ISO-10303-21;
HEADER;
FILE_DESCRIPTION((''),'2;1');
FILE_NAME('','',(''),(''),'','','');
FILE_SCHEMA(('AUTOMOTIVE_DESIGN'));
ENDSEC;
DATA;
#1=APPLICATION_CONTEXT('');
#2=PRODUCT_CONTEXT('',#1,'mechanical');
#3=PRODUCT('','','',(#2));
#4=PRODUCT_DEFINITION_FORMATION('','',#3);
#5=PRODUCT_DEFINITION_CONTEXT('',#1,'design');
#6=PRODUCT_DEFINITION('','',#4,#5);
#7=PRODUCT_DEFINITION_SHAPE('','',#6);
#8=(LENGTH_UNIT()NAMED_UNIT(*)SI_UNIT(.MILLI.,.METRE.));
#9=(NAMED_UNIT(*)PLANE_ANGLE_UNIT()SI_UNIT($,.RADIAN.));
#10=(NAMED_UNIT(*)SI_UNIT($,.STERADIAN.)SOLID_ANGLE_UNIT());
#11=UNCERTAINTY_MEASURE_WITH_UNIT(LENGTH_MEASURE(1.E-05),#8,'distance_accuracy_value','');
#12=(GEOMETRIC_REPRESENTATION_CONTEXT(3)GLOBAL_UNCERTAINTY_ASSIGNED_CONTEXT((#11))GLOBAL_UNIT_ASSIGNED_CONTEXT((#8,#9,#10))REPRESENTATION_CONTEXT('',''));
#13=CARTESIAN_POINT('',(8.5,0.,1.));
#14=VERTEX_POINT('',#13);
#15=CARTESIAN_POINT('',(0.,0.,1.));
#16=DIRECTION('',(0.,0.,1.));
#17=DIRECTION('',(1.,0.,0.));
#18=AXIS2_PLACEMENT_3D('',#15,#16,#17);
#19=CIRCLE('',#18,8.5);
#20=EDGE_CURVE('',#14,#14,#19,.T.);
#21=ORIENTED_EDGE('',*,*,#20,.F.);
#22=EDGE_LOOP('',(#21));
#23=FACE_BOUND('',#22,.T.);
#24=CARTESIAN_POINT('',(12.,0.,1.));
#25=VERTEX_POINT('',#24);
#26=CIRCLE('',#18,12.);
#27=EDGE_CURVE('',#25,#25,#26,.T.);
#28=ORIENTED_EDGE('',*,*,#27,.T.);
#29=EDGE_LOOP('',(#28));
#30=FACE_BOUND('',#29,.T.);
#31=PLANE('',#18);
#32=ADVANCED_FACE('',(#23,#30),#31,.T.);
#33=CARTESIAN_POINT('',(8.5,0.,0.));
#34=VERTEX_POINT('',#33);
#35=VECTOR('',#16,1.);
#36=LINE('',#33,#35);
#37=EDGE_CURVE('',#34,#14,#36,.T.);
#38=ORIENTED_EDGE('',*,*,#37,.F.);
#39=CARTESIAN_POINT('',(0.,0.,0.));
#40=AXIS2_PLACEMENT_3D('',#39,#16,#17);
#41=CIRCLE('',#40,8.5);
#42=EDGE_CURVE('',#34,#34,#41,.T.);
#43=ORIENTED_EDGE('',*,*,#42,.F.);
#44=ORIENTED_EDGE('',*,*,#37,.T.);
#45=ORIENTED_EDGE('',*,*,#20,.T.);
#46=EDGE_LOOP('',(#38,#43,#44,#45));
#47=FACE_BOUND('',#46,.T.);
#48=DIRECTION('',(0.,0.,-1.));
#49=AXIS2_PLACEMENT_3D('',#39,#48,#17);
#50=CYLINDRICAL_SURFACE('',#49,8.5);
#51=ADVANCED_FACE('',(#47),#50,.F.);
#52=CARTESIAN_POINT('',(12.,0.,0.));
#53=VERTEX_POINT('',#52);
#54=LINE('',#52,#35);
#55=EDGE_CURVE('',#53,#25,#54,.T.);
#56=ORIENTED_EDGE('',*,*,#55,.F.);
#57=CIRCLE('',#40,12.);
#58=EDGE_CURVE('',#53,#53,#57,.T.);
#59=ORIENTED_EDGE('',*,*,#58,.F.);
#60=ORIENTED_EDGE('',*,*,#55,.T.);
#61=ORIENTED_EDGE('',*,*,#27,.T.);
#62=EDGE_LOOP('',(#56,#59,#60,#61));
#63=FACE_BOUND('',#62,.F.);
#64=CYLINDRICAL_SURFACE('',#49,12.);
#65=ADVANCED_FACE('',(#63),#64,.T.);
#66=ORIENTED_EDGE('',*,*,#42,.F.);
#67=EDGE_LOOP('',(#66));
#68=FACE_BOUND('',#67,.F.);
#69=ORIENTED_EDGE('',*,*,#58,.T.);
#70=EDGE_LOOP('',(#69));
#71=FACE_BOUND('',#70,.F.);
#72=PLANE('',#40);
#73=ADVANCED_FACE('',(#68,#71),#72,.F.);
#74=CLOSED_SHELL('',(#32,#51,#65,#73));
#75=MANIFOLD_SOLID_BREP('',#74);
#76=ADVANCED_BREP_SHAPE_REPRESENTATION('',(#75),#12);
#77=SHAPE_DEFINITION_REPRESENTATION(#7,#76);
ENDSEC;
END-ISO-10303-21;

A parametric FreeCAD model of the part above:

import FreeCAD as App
import Part
import Sketcher
from FreeCAD import Vector
Q = App.Units.Quantity

doc = App.newDocument("Part")
body = doc.addObject("PartDesign::Body", "Body")

sketch1 = doc.addObject("Sketcher::SketchObject", "Sketch")
body.addObject(sketch1)
sketch1.AttachmentSupport = (doc.XY_Plane, [""])
sketch1.MapMode = "FlatFace"
sketch1.addGeometry([
    Part.Circle(Vector(0, 0, 0), Vector(0, 0, 1), 12),
    Part.Circle(Vector(0, 0, 0), Vector(0, 0, 1), 8.5),
], False)
sketch1.addConstraint([
    Sketcher.Constraint("Coincident", 0, 3, -1, 1),
    Sketcher.Constraint("Coincident", 1, 3, -1, 1),
    Sketcher.Constraint("Diameter", 0, Q("24 mm")),
    Sketcher.Constraint("Diameter", 1, Q("17 mm")),
])
pad1 = doc.addObject("PartDesign::Pad", "Pad")
body.addObject(pad1)
pad1.Profile = sketch1
pad1.Length = 1

doc.recompute()
